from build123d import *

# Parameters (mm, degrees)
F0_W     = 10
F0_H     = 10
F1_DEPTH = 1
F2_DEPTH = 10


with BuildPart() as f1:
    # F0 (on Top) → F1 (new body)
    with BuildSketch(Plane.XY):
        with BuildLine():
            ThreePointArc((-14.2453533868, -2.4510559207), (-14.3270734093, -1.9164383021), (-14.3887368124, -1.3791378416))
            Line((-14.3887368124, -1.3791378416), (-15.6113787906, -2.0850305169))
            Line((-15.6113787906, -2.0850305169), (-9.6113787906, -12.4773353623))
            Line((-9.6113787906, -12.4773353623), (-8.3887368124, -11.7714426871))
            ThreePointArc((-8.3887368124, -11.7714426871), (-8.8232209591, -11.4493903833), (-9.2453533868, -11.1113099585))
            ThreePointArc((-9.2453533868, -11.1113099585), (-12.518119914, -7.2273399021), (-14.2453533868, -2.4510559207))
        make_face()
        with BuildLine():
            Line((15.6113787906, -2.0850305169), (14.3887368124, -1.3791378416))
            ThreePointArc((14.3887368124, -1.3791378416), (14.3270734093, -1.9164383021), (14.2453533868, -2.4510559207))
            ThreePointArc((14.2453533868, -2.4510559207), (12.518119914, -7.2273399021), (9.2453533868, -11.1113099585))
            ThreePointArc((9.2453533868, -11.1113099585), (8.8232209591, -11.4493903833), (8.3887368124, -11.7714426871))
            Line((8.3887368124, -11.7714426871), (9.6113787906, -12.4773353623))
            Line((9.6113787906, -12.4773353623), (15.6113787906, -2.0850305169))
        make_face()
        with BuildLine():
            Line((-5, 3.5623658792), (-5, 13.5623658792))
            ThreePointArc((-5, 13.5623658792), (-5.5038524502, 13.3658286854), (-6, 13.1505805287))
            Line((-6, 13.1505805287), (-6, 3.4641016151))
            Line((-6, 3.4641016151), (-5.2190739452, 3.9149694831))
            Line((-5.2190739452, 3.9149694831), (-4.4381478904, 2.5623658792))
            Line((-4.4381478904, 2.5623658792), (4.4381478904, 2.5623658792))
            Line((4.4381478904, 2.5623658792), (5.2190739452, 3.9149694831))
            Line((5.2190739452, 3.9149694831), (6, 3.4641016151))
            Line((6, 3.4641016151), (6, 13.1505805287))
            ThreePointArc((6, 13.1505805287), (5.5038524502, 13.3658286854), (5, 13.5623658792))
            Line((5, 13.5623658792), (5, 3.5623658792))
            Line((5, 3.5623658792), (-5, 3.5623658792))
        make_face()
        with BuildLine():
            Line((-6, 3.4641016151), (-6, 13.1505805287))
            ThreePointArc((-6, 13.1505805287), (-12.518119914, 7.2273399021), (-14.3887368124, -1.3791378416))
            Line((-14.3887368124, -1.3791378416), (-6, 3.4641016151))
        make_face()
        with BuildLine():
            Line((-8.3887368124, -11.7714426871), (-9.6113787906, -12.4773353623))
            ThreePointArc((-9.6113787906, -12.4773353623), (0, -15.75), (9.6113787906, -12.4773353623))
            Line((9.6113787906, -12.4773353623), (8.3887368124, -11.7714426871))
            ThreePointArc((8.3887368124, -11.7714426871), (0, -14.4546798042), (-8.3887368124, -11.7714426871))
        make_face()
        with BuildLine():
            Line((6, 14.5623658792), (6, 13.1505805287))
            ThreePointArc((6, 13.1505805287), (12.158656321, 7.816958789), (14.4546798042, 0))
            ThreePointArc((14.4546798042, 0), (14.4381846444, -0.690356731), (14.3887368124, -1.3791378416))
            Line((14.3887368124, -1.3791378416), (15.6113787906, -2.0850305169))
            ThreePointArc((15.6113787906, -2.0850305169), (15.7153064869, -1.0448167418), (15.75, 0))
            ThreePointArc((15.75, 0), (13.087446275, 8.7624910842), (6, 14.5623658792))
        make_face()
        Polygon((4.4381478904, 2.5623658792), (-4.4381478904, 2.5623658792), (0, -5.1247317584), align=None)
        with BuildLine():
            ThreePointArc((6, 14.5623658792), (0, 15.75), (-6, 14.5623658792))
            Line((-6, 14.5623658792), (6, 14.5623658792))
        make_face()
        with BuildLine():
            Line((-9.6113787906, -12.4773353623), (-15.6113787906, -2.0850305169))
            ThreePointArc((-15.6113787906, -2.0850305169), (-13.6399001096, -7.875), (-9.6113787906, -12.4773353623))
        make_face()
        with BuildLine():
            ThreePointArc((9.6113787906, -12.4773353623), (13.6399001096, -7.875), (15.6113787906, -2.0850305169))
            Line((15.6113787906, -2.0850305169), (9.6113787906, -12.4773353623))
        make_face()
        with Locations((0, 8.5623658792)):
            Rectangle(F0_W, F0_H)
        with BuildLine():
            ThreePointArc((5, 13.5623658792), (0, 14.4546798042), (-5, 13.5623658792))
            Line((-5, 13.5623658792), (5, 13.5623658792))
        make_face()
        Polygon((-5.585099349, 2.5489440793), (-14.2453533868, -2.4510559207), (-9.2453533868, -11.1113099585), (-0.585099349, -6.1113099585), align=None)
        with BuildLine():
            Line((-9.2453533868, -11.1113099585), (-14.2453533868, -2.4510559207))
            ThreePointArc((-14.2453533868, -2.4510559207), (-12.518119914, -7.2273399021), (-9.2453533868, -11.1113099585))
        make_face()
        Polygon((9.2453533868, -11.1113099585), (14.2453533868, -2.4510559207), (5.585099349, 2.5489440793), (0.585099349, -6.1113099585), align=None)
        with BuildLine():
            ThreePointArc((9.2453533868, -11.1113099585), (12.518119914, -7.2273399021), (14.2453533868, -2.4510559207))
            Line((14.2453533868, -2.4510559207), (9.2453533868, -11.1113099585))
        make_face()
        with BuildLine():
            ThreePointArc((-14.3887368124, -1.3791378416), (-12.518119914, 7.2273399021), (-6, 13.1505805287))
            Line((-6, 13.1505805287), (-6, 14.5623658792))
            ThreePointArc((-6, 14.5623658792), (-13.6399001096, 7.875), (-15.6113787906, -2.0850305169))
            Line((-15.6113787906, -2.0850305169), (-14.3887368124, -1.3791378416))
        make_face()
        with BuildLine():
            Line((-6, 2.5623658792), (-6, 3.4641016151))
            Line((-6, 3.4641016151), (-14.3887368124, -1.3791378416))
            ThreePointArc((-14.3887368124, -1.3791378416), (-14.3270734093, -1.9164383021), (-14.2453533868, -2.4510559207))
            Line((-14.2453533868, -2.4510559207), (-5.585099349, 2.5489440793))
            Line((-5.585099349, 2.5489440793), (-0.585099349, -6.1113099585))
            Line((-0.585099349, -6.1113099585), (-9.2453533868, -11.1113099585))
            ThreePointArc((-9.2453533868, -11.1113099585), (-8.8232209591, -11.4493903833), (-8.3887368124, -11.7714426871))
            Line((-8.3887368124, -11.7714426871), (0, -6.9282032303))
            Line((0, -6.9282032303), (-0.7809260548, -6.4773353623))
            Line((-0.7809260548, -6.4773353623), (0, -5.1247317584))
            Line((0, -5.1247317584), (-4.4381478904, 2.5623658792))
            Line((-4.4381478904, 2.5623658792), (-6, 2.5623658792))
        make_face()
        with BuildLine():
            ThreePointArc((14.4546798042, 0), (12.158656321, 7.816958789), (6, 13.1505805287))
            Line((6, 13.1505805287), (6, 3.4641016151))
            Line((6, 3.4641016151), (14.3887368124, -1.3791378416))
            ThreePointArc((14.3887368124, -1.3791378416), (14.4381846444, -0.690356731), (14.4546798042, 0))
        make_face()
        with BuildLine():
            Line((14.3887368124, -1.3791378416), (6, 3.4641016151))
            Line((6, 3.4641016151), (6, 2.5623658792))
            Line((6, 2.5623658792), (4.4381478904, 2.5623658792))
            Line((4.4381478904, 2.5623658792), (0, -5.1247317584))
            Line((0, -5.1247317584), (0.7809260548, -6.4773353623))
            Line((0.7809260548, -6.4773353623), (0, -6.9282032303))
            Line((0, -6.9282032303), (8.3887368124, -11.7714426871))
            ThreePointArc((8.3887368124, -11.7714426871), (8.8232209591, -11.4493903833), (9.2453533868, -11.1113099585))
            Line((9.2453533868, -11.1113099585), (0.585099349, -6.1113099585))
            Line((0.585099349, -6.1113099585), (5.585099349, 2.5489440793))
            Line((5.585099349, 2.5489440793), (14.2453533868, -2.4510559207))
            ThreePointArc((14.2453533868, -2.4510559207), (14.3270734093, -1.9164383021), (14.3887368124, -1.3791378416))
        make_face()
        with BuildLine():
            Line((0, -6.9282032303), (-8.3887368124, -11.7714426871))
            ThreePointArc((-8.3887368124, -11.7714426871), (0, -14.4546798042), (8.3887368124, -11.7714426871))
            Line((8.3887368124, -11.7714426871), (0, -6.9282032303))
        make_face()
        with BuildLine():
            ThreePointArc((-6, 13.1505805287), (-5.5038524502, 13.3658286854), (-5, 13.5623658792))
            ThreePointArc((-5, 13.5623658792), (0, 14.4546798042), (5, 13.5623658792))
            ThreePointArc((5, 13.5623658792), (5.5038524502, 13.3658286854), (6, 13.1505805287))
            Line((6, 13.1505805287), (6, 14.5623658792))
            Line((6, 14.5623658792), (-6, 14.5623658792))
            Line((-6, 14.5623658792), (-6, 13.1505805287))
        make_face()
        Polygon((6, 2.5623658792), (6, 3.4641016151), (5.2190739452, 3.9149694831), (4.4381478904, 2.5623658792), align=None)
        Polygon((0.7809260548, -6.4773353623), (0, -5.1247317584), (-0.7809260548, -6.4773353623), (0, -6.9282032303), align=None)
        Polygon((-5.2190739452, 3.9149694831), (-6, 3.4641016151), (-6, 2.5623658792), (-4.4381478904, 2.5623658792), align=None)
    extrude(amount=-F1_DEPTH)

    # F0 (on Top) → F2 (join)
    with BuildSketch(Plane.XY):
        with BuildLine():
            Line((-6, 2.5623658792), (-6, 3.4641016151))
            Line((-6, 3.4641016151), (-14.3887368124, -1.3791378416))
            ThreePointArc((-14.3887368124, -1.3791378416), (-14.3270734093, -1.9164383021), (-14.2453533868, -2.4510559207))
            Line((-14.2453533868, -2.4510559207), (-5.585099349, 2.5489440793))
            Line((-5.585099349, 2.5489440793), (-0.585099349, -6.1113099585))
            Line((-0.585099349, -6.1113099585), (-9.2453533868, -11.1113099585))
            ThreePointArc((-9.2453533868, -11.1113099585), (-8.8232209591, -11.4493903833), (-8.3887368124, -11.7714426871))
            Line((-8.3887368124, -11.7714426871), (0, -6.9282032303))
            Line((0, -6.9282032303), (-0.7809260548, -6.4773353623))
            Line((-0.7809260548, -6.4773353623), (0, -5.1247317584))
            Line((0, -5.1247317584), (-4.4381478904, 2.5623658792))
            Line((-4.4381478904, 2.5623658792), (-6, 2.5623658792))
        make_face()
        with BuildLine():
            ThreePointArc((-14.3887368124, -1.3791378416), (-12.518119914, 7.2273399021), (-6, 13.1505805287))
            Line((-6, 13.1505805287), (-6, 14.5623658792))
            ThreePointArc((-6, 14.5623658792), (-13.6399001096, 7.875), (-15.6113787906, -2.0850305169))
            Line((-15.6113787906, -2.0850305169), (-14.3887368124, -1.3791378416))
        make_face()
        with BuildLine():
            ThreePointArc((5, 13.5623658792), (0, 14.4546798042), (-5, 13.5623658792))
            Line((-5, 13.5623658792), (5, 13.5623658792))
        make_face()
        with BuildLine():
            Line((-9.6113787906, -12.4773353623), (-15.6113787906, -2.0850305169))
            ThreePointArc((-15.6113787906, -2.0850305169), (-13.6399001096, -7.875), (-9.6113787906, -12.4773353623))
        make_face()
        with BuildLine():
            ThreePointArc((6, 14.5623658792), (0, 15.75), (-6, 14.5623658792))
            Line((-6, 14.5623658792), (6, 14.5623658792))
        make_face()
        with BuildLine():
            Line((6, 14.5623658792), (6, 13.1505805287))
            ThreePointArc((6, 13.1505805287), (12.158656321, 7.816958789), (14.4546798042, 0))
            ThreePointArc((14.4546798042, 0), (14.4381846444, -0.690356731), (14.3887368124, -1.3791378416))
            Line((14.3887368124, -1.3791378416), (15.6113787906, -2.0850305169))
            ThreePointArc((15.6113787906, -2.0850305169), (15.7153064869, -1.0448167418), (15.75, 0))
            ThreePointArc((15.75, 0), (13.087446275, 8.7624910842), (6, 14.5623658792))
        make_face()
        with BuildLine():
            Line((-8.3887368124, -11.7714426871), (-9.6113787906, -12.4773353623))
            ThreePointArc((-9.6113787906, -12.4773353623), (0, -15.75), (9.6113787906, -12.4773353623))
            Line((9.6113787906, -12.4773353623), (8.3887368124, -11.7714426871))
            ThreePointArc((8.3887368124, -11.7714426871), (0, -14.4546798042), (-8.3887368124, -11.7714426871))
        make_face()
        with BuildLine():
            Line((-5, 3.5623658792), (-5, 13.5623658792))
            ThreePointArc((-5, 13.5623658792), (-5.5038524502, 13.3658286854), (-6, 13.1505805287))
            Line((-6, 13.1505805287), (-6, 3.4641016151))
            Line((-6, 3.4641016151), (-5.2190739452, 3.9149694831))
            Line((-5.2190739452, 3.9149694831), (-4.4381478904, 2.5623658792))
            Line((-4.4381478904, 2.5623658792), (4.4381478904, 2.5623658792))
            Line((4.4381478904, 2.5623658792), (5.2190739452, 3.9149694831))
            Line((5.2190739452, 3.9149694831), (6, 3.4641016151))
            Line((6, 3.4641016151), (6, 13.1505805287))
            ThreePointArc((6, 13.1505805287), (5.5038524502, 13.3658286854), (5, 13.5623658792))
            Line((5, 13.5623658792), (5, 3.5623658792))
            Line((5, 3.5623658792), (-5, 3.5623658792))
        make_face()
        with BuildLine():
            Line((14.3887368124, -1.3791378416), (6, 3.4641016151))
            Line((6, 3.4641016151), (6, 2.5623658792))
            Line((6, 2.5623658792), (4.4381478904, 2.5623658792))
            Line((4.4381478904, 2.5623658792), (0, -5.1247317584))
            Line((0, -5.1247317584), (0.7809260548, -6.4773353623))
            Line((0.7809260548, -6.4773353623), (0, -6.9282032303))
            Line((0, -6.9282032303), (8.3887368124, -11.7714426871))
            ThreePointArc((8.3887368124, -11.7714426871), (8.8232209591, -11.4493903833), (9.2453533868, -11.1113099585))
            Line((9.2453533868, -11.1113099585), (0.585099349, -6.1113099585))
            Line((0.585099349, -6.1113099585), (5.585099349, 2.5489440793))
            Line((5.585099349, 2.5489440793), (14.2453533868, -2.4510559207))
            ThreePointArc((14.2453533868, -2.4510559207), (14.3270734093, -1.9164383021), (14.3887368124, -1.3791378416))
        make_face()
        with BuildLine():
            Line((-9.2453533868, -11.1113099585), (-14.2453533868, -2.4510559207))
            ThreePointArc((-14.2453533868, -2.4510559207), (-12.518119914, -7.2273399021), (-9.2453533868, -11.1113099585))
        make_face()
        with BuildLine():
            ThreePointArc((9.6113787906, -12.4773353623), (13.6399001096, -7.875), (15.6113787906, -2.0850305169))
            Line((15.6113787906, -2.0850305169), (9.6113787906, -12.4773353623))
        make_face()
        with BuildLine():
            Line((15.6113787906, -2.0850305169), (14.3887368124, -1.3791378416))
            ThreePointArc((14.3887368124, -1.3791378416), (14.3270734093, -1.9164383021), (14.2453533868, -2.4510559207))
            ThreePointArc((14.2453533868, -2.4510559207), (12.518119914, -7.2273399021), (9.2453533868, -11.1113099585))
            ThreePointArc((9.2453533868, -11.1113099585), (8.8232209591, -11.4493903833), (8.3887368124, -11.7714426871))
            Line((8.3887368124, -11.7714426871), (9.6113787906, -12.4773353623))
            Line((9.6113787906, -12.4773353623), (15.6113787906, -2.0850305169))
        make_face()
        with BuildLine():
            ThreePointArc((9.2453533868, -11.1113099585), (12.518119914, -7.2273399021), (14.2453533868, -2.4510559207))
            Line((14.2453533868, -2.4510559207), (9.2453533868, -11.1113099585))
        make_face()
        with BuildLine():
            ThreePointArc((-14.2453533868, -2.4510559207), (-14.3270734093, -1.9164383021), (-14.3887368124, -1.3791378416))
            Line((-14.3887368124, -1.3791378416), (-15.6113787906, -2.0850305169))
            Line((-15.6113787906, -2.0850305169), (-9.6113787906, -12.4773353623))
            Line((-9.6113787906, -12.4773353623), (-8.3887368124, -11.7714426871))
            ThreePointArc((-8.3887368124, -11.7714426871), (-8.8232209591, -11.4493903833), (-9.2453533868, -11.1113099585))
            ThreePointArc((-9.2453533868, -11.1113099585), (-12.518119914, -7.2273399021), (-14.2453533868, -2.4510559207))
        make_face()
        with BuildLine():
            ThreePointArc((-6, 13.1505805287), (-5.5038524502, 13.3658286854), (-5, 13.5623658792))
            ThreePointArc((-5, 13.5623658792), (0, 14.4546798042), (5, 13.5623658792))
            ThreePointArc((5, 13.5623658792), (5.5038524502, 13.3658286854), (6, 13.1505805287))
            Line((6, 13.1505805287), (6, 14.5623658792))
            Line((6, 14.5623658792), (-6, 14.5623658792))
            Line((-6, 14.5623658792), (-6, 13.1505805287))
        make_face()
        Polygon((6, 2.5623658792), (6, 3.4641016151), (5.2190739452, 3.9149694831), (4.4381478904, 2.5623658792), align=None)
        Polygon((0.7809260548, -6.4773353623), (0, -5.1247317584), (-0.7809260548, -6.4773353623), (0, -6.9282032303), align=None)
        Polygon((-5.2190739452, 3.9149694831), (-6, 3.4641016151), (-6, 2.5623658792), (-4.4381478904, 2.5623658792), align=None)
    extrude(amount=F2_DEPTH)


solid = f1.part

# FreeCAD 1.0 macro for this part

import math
import FreeCAD as App
import Part
import Sketcher

V = App.Vector
Q = App.Units.Quantity

doc = App.newDocument("Part")
body = doc.addObject("PartDesign::Body", "Body")

sketch1 = body.newObject("Sketcher::SketchObject", "Sketch")
sketch1.AttachmentSupport = (doc.getObject("XY_Plane"), [""])
sketch1.MapMode = "FlatFace"
sketch1.addGeometry(Part.ArcOfCircle(Part.Circle(V(0, 0, 0), V(0, 0, 1), 15.8), math.radians(112), math.radians(232)), False)
sketch1.addGeometry(Part.ArcOfCircle(Part.Circle(V(0, 0, 0), V(0, 0, 1), 15.8), math.radians(-128), math.radians(-52)), False)
sketch1.addGeometry(Part.ArcOfCircle(Part.Circle(V(0, 0, 0), V(0, 0, 1), 15.8), math.radians(-52), math.radians(-8)), False)
sketch1.addGeometry(Part.ArcOfCircle(Part.Circle(V(0, 0, 0), V(0, 0, 1), 15.7), math.radians(-7.61), math.radians(0)), False)
sketch1.addGeometry(Part.ArcOfCircle(Part.Circle(V(0, 0, 0), V(0, 0, 1), 15.8), math.radians(0), math.radians(68)), False)
sketch1.addGeometry(Part.ArcOfCircle(Part.Circle(V(0, 0, 0), V(0, 0, 1), 15.8), math.radians(68), math.radians(112)), False)
sketch1.addConstraint(Sketcher.Constraint("Tangent", 0, 2, 1, 1))
sketch1.addConstraint(Sketcher.Constraint("Tangent", 1, 2, 2, 1))
sketch1.addConstraint(Sketcher.Constraint("Tangent", 2, 2, 3, 1))
sketch1.addConstraint(Sketcher.Constraint("Tangent", 3, 2, 4, 1))
sketch1.addConstraint(Sketcher.Constraint("Tangent", 4, 2, 5, 1))
sketch1.addConstraint(Sketcher.Constraint("Tangent", 5, 2, 0, 1))
sketch1.addConstraint(Sketcher.Constraint("Coincident", 0, 3, -1, 1))
sketch1.addConstraint(Sketcher.Constraint("Coincident", 2, 3, -1, 1))
sketch1.addConstraint(Sketcher.Constraint("Equal", 2, 3))
sketch1.addConstraint(Sketcher.Constraint("PointOnObject", 3, 2, -1))
sketch1.addConstraint(Sketcher.Constraint("Horizontal", 0, 2, 1, 2))
sketch1.addConstraint(Sketcher.Constraint("Horizontal", 4, 2, 5, 2))
sketch1.addConstraint(Sketcher.Constraint("Radius", 0, Q("15.75 mm")))
sketch1.addConstraint(Sketcher.Constraint("DistanceX", -1, 1, 4, 2, Q("6 mm")))
sketch1.addConstraint(Sketcher.Constraint("DistanceX", 1, 2, 2, 2, Q("6 mm")))
sketch1.addConstraint(Sketcher.Constraint("DistanceX", 0, 2, -1, 1, Q("9.611379 mm")))
pad1 = body.newObject("PartDesign::Pad", "Pad")
pad1.Profile = sketch1
pad1.Length = 1
pad1.Reversed = True

sketch2 = body.newObject("Sketcher::SketchObject", "Sketch001")
sketch2.AttachmentSupport = (doc.getObject("XY_Plane"), [""])
sketch2.MapMode = "FlatFace"
sketch2.addGeometry(Part.ArcOfCircle(Part.Circle(V(0, 0, 0), V(0, 0, 1), 15.8), math.radians(0), math.radians(68)), False)
sketch2.addGeometry(Part.ArcOfCircle(Part.Circle(V(0, 0, 0), V(0, 0, 1), 15.8), math.radians(68), math.radians(112)), False)
sketch2.addGeometry(Part.ArcOfCircle(Part.Circle(V(0, 0, 0), V(0, 0, 1), 15.8), math.radians(112), math.radians(232)), False)
sketch2.addGeometry(Part.ArcOfCircle(Part.Circle(V(0, 0, 0), V(0, 0, 1), 15.8), math.radians(-128), math.radians(-52)), False)
sketch2.addGeometry(Part.ArcOfCircle(Part.Circle(V(0, 0, 0), V(0, 0, 1), 15.8), math.radians(-52), math.radians(-8)), False)
sketch2.addGeometry(Part.ArcOfCircle(Part.Circle(V(0, 0, 0), V(0, 0, 1), 15.7), math.radians(-7.61), math.radians(0)), False)
sketch2.addGeometry(Part.LineSegment(V(-14.2, -2.5, 0), V(-5.6, 2.5, 0)), False)
sketch2.addGeometry(Part.LineSegment(V(-5.6, 2.5, 0), V(-0.6, -6.1, 0)), False)
sketch2.addGeometry(Part.LineSegment(V(-0.6, -6.1, 0), V(-9.2, -11.1, 0)), False)
sketch2.addGeometry(Part.LineSegment(V(-9.2, -11.1, 0), V(-14.2, -2.5, 0)), False)
sketch2.addGeometry(Part.LineSegment(V(-8.4, -11.8, 0), V(0, -6.9, 0)), False)
sketch2.addGeometry(Part.LineSegment(V(0, -6.9, 0), V(8.4, -11.8, 0)), False)
sketch2.addGeometry(Part.ArcOfCircle(Part.Circle(V(0, 0, 0), V(0, 0, 1), 14.5), math.radians(-125), math.radians(-55)), False)
sketch2.addGeometry(Part.LineSegment(V(0, -5.1, 0), V(-4.4, 2.6, 0)), False)
sketch2.addGeometry(Part.LineSegment(V(-4.4, 2.6, 0), V(4.4, 2.6, 0)), False)
sketch2.addGeometry(Part.LineSegment(V(4.4, 2.6, 0), V(0, -5.1, 0)), False)
sketch2.addGeometry(Part.LineSegment(V(14.2, -2.5, 0), V(9.2, -11.1, 0)), False)
sketch2.addGeometry(Part.LineSegment(V(9.2, -11.1, 0), V(0.6, -6.1, 0)), False)
sketch2.addGeometry(Part.LineSegment(V(0.6, -6.1, 0), V(5.6, 2.5, 0)), False)
sketch2.addGeometry(Part.LineSegment(V(5.6, 2.5, 0), V(14.2, -2.5, 0)), False)
sketch2.addGeometry(Part.LineSegment(V(-6, 13.2, 0), V(-6, 3.5, 0)), False)
sketch2.addGeometry(Part.LineSegment(V(-6, 3.5, 0), V(-14.4, -1.4, 0)), False)
sketch2.addGeometry(Part.ArcOfCircle(Part.Circle(V(0, 0, 0), V(0, 0, 1), 14.5), math.radians(115), math.radians(185)), False)
sketch2.addGeometry(Part.LineSegment(V(14.4, -1.4, 0), V(6, 3.5, 0)), False)
sketch2.addGeometry(Part.LineSegment(V(6, 3.5, 0), V(6, 13.2, 0)), False)
sketch2.addGeometry(Part.ArcOfCircle(Part.Circle(V(0, 0, 0), V(0, 0, 1), 14.5), math.radians(0), math.radians(65)), False)
sketch2.addGeometry(Part.ArcOfCircle(Part.Circle(V(0, 0, 0), V(0, 0, 1), 14.5), math.radians(-5.47), math.radians(0)), False)
sketch2.addGeometry(Part.LineSegment(V(-5, 3.6, 0), V(-5, 13.6, 0)), False)
sketch2.addGeometry(Part.LineSegment(V(-5, 13.6, 0), V(5, 13.6, 0)), False)
sketch2.addGeometry(Part.LineSegment(V(5, 13.6, 0), V(5, 3.6, 0)), False)
sketch2.addGeometry(Part.LineSegment(V(5, 3.6, 0), V(-5, 3.6, 0)), False)
sketch2.addConstraint(Sketcher.Constraint("Tangent", 0, 2, 1, 1))
sketch2.addConstraint(Sketcher.Constraint("Tangent", 1, 2, 2, 1))
sketch2.addConstraint(Sketcher.Constraint("Tangent", 2, 2, 3, 1))
sketch2.addConstraint(Sketcher.Constraint("Tangent", 3, 2, 4, 1))
sketch2.addConstraint(Sketcher.Constraint("Tangent", 4, 2, 5, 1))
sketch2.addConstraint(Sketcher.Constraint("Tangent", 5, 2, 0, 1))
sketch2.addConstraint(Sketcher.Constraint("Coincident", 6, 2, 7, 1))
sketch2.addConstraint(Sketcher.Constraint("Coincident", 7, 2, 8, 1))
sketch2.addConstraint(Sketcher.Constraint("Coincident", 8, 2, 9, 1))
sketch2.addConstraint(Sketcher.Constraint("Coincident", 9, 2, 6, 1))
sketch2.addConstraint(Sketcher.Constraint("Coincident", 10, 2, 11, 1))
sketch2.addConstraint(Sketcher.Constraint("Coincident", 11, 2, 12, 2))
sketch2.addConstraint(Sketcher.Constraint("Coincident", 12, 1, 10, 1))
sketch2.addConstraint(Sketcher.Constraint("Coincident", 13, 2, 14, 1))
sketch2.addConstraint(Sketcher.Constraint("Coincident", 14, 2, 15, 1))
sketch2.addConstraint(Sketcher.Constraint("Coincident", 15, 2, 13, 1))
sketch2.addConstraint(Sketcher.Constraint("Coincident", 16, 2, 17, 1))
sketch2.addConstraint(Sketcher.Constraint("Coincident", 17, 2, 18, 1))
sketch2.addConstraint(Sketcher.Constraint("Coincident", 18, 2, 19, 1))
sketch2.addConstraint(Sketcher.Constraint("Coincident", 19, 2, 16, 1))
sketch2.addConstraint(Sketcher.Constraint("Coincident", 20, 2, 21, 1))
sketch2.addConstraint(Sketcher.Constraint("Coincident", 21, 2, 22, 2))
sketch2.addConstraint(Sketcher.Constraint("Coincident", 22, 1, 20, 1))
sketch2.addConstraint(Sketcher.Constraint("Coincident", 23, 2, 24, 1))
sketch2.addConstraint(Sketcher.Constraint("Coincident", 24, 2, 25, 2))
sketch2.addConstraint(Sketcher.Constraint("Tangent", 25, 1, 26, 2))
sketch2.addConstraint(Sketcher.Constraint("Coincident", 26, 1, 23, 1))
sketch2.addConstraint(Sketcher.Constraint("Coincident", 27, 2, 28, 1))
sketch2.addConstraint(Sketcher.Constraint("Coincident", 28, 2, 29, 1))
sketch2.addConstraint(Sketcher.Constraint("Coincident", 29, 2, 30, 1))
sketch2.addConstraint(Sketcher.Constraint("Coincident", 30, 2, 27, 1))
sketch2.addConstraint(Sketcher.Constraint("Horizontal", 14))
sketch2.addConstraint(Sketcher.Constraint("Vertical", 20))
sketch2.addConstraint(Sketcher.Constraint("Vertical", 24))
sketch2.addConstraint(Sketcher.Constraint("Vertical", 27))
sketch2.addConstraint(Sketcher.Constraint("Horizontal", 28))
sketch2.addConstraint(Sketcher.Constraint("Vertical", 29))
sketch2.addConstraint(Sketcher.Constraint("Horizontal", 30))
sketch2.addConstraint(Sketcher.Constraint("Coincident", 0, 3, -1, 1))
sketch2.addConstraint(Sketcher.Constraint("Coincident", 2, 3, -1, 1))
sketch2.addConstraint(Sketcher.Constraint("Coincident", 12, 3, -1, 1))
sketch2.addConstraint(Sketcher.Constraint("Coincident", 22, 3, -1, 1))
sketch2.addConstraint(Sketcher.Constraint("Coincident", 25, 3, -1, 1))
sketch2.addConstraint(Sketcher.Constraint("Equal", 2, 3))
sketch2.addConstraint(Sketcher.Constraint("Equal", 12, 22))
sketch2.addConstraint(Sketcher.Constraint("Equal", 22, 25))
sketch2.addConstraint(Sketcher.Constraint("Equal", 25, 26))
sketch2.addConstraint(Sketcher.Constraint("Symmetric", 8, 2, 16, 2, -2))
sketch2.addConstraint(Sketcher.Constraint("Symmetric", 7, 2, 17, 2, -2))
sketch2.addConstraint(Sketcher.Constraint("Symmetric", 6, 2, 18, 2, -2))
sketch2.addConstraint(Sketcher.Constraint("Symmetric", 9, 2, 19, 2, -2))
sketch2.addConstraint(Sketcher.Constraint("Symmetric", 20, 2, 23, 2, -2))
sketch2.addConstraint(Sketcher.Constraint("PointOnObject", 5, 2, -1))
sketch2.addConstraint(Sketcher.Constraint("PointOnObject", 10, 2, -2))
sketch2.addConstraint(Sketcher.Constraint("PointOnObject", 15, 2, -2))
sketch2.addConstraint(Sketcher.Constraint("PointOnObject", 25, 1, -1))
sketch2.addConstraint(Sketcher.Constraint("Perpendicular", 6, 7))
sketch2.addConstraint(Sketcher.Constraint("Perpendicular", 7, 8))
sketch2.addConstraint(Sketcher.Constraint("Perpendicular", 8, 9))
sketch2.addConstraint(Sketcher.Constraint("Perpendicular", 9, 10))
sketch2.addConstraint(Sketcher.Constraint("Perpendicular", 10, 13))
sketch2.addConstraint(Sketcher.Constraint("Perpendicular", 11, 15))
sketch2.addConstraint(Sketcher.Constraint("Parallel", 15, 16))
sketch2.addConstraint(Sketcher.Constraint("Perpendicular", 13, 21))
sketch2.addConstraint(Sketcher.Constraint("Parallel", 19, 23))
sketch2.addConstraint(Sketcher.Constraint("Horizontal", 0, 2, 1, 2))
sketch2.addConstraint(Sketcher.Constraint("Horizontal", 2, 2, 3, 2))
sketch2.addConstraint(Sketcher.Constraint("Vertical", 1, 2, 20, 2))
sketch2.addConstraint(Sketcher.Constraint("Equal", 30, 27))
sketch2.addConstraint(Sketcher.Constraint("Equal", 6, 7))
sketch2.addConstraint(Sketcher.Constraint("Equal", 11, 21))
sketch2.addConstraint(Sketcher.Constraint("DistanceX", 28, 1, 28, 2, Q("10 mm")))
sketch2.addConstraint(Sketcher.Constraint("Angle", 6, Q("30 deg")))
sketch2.addConstraint(Sketcher.Constraint("Radius", 0, Q("15.75 mm")))
sketch2.addConstraint(Sketcher.Constraint("Distance", 6, Q("10 mm")))
sketch2.addConstraint(Sketcher.Constraint("DistanceX", -1, 1, 0, 2, Q("6 mm")))
sketch2.addConstraint(Sketcher.Constraint("DistanceX", 27, 2, -1, 1, Q("5 mm")))
sketch2.addConstraint(Sketcher.Constraint("DistanceX", 3, 2, 4, 2, Q("6 mm")))
sketch2.addConstraint(Sketcher.Constraint("DistanceY", 27, 2, 1, 2, Q("1 mm")))
sketch2.addConstraint(Sketcher.Constraint("DistanceY", 13, 2, 27, 2, Q("11 mm")))
sketch2.addConstraint(Sketcher.Constraint("Radius", 12, Q("14.45468 mm")))
sketch2.addConstraint(Sketcher.Constraint("DistanceY", 20, 2, 20, 1, Q("9.686479 mm")))
sketch2.addConstraint(Sketcher.Constraint("DistanceX", 6, 2, -1, 1, Q("5.585099 mm")))
sketch2.addConstraint(Sketcher.Constraint("DistanceX", 25, 1, 4, 2, Q("1.156699 mm")))
sketch2.addConstraint(Sketcher.Constraint("DistanceX", 14, 1, 14, 2, Q("8.876296 mm")))
sketch2.addConstraint(Sketcher.Constraint("DistanceY", 7, 2, -1, 1, Q("6.11131 mm")))
pad2 = body.newObject("PartDesign::Pad", "Pad001")
pad2.Profile = sketch2
pad2.Length = 10

doc.recompute()
